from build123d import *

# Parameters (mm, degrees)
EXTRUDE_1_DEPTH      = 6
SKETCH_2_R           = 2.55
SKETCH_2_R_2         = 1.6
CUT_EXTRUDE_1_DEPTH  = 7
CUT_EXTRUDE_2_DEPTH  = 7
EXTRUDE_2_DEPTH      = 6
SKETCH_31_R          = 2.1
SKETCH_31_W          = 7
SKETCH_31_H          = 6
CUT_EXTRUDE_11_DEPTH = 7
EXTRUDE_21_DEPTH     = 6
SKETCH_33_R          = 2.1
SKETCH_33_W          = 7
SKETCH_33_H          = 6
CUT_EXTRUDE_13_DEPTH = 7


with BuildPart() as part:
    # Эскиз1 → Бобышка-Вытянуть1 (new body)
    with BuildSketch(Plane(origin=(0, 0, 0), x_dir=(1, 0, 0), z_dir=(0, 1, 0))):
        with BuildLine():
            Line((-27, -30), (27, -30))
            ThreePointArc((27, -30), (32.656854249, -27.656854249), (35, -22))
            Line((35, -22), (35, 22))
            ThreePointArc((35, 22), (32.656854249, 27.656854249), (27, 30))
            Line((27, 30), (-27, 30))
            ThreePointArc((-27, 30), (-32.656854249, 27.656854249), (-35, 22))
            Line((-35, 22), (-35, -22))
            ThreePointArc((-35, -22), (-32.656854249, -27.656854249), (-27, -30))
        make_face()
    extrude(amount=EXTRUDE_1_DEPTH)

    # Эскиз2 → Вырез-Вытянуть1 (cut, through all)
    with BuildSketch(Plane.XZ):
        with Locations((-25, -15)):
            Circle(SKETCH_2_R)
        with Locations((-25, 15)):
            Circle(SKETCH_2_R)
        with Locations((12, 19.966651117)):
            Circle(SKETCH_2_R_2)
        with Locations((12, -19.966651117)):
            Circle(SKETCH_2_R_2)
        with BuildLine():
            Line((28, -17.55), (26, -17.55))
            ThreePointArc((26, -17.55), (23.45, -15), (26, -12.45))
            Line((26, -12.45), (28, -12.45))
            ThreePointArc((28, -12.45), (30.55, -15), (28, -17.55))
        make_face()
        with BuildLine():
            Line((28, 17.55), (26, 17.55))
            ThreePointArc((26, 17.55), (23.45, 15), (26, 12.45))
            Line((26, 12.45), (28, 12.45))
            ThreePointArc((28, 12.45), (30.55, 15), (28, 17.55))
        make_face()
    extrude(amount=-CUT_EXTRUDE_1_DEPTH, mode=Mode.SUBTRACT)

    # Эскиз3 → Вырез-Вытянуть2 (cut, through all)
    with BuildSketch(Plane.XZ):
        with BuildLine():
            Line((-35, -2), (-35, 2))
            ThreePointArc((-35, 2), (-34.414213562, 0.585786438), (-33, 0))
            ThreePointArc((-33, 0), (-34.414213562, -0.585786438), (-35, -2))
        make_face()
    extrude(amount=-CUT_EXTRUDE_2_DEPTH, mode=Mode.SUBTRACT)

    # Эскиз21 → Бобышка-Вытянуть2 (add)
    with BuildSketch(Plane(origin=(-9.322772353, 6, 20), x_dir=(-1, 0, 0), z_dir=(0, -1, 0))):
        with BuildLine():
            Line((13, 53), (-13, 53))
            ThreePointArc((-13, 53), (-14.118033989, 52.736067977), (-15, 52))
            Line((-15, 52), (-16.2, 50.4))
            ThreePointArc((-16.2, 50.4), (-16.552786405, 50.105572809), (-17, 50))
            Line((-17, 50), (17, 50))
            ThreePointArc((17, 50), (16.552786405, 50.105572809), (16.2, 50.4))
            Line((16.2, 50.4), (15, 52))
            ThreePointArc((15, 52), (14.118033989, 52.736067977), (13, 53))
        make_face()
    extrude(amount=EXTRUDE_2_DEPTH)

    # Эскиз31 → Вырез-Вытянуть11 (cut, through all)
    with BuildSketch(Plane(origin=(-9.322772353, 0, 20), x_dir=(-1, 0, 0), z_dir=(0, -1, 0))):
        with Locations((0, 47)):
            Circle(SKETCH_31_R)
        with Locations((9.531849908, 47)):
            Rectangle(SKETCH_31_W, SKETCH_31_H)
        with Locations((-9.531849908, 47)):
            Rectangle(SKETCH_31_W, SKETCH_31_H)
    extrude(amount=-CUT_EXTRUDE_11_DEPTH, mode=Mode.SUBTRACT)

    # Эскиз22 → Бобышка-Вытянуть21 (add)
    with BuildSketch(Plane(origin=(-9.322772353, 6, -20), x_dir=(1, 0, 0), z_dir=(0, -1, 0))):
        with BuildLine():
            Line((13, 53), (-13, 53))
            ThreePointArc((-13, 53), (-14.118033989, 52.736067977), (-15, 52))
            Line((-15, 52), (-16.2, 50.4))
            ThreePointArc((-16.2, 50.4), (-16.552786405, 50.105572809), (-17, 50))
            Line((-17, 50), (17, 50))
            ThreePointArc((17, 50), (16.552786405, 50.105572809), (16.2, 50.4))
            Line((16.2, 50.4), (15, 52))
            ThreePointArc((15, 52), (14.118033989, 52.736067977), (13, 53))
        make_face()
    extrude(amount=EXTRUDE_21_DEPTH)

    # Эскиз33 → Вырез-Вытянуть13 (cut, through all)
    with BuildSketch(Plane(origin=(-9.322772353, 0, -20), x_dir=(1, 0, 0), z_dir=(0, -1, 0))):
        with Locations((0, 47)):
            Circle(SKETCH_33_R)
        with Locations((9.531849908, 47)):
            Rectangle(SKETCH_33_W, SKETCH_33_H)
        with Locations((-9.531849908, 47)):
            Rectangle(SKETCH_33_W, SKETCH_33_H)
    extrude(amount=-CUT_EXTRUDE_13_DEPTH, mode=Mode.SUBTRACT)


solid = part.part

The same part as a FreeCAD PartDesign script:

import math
import FreeCAD as App
import Part
import Sketcher
from FreeCAD import Vector


def add_polygon(sketch, points):
    """Adds a closed chain of lines whose ends are joined by coincident constraints."""
    first, n = sketch.GeometryCount, len(points)
    for a, b in zip(points, points[1:] + points[:1]):
        sketch.addGeometry(Part.LineSegment(App.Vector(*a, 0), App.Vector(*b, 0)), False)
    for i in range(n):
        sketch.addConstraint(Sketcher.Constraint("Coincident", first + i, 2, first + (i + 1) % n, 1))

doc = App.newDocument("Part")
body = doc.addObject("PartDesign::Body", "Body")

# Sketch on XZ plane
sketch1 = body.newObject("Sketcher::SketchObject", "Sketch")
sketch1.AttachmentSupport = (doc.getObject("XZ_Plane"), [""])
sketch1.MapMode = "FlatFace"
sketch1.addGeometry([
    Part.LineSegment(Vector(-27, 30, 0), Vector(27, 30, 0)),  # 0
    Part.ArcOfCircle(Part.Circle(Vector(27, 22, 0), Vector(0, 0, 1), 8), math.radians(0), math.radians(90)),  # 1
    Part.LineSegment(Vector(35, 22, 0), Vector(35, -22, 0)),  # 2
    Part.ArcOfCircle(Part.Circle(Vector(27, -22, 0), Vector(0, 0, 1), 8), math.radians(-90), math.radians(0)),  # 3
    Part.LineSegment(Vector(27, -30, 0), Vector(-27, -30, 0)),  # 4
    Part.ArcOfCircle(Part.Circle(Vector(-27, -22, 0), Vector(0, 0, 1), 8), math.radians(-180), math.radians(-90)),  # 5
    Part.LineSegment(Vector(-35, -22, 0), Vector(-35, 22, 0)),  # 6
    Part.ArcOfCircle(Part.Circle(Vector(-27, 22, 0), Vector(0, 0, 1), 8), math.radians(90), math.radians(180)),  # 7
], False)
sketch1.addConstraint([
    Sketcher.Constraint("Tangent", 0, 2, 1, 2),
    Sketcher.Constraint("Tangent", 1, 1, 2, 1),
    Sketcher.Constraint("Tangent", 2, 2, 3, 2),
    Sketcher.Constraint("Tangent", 3, 1, 4, 1),
    Sketcher.Constraint("Tangent", 4, 2, 5, 2),
    Sketcher.Constraint("Tangent", 5, 1, 6, 1),
    Sketcher.Constraint("Tangent", 6, 2, 7, 2),
    Sketcher.Constraint("Tangent", 7, 1, 0, 1),
    Sketcher.Constraint("Horizontal", 0),
    Sketcher.Constraint("Vertical", 2),
    Sketcher.Constraint("Horizontal", 4),
    Sketcher.Constraint("Vertical", 6),
    Sketcher.Constraint("Equal", 1, 3),
    Sketcher.Constraint("Equal", 3, 5),
    Sketcher.Constraint("Equal", 5, 7),
    Sketcher.Constraint("Symmetric", 1, 3, 5, 3, -1, 1),
    Sketcher.Constraint("Radius", 1, 8.0),
    Sketcher.Constraint("DistanceX", 0, 1, 0, 2, 54.0),
    Sketcher.Constraint("DistanceY", 2, 2, 2, 1, 44.0),
])
pad1 = body.newObject("PartDesign::Pad", "Pad")
pad1.Profile = sketch1
pad1.Length = 6
pad1.Reversed = True

# Sketch on XZ plane
sketch2 = body.newObject("Sketcher::SketchObject", "Sketch001")
sketch2.AttachmentSupport = (doc.getObject("XZ_Plane"), [""])
sketch2.MapMode = "FlatFace"
sketch2.addGeometry([
    Part.Circle(Vector(-25, -15, 0), Vector(0, 0, 1), 2.5),  # 0
    Part.Circle(Vector(-25, 15, 0), Vector(0, 0, 1), 2.5),  # 1
    Part.Circle(Vector(12, 20, 0), Vector(0, 0, 1), 1.6),  # 2
    Part.Circle(Vector(12, -20, 0), Vector(0, 0, 1), 1.6),  # 3
    Part.LineSegment(Vector(26, -17.6, 0), Vector(28, -17.6, 0)),  # 4
    Part.ArcOfCircle(Part.Circle(Vector(28, -15, 0), Vector(0, 0, 1), 2.5), math.radians(-90), math.radians(90)),  # 5
    Part.LineSegment(Vector(28, -12.4, 0), Vector(26, -12.4, 0)),  # 6
    Part.ArcOfCircle(Part.Circle(Vector(26, -15, 0), Vector(0, 0, 1), 2.5), math.radians(90), math.radians(270)),  # 7
    Part.LineSegment(Vector(28, 17.6, 0), Vector(26, 17.6, 0)),  # 8
    Part.ArcOfCircle(Part.Circle(Vector(26, 15, 0), Vector(0, 0, 1), 2.5), math.radians(90), math.radians(270)),  # 9
    Part.LineSegment(Vector(26, 12.4, 0), Vector(28, 12.4, 0)),  # 10
    Part.ArcOfCircle(Part.Circle(Vector(28, 15, 0), Vector(0, 0, 1), 2.5), math.radians(-90), math.radians(90)),  # 11
], False)
sketch2.addConstraint([
    Sketcher.Constraint("Tangent", 4, 2, 5, 1),
    Sketcher.Constraint("Tangent", 5, 2, 6, 1),
    Sketcher.Constraint("Tangent", 6, 2, 7, 1),
    Sketcher.Constraint("Tangent", 7, 2, 4, 1),
    Sketcher.Constraint("Tangent", 8, 2, 9, 1),
    Sketcher.Constraint("Tangent", 9, 2, 10, 1),
    Sketcher.Constraint("Tangent", 10, 2, 11, 1),
    Sketcher.Constraint("Tangent", 11, 2, 8, 1),
    Sketcher.Constraint("Horizontal", 4),
    Sketcher.Constraint("Horizontal", 6),
    Sketcher.Constraint("Horizontal", 8),
    Sketcher.Constraint("Horizontal", 10),
    Sketcher.Constraint("Equal", 0, 1),
    Sketcher.Constraint("Equal", 2, 3),
    Sketcher.Constraint("Equal", 1, 5),
    Sketcher.Constraint("Equal", 7, 9),
    Sketcher.Constraint("Symmetric", 0, 3, 1, 3, -1),
    Sketcher.Constraint("Symmetric", 2, 3, 3, 3, -1),
    Sketcher.Constraint("Symmetric", 7, 3, 9, 3, -1),
    Sketcher.Constraint("Horizontal", 0, 3, 5, 3),
    Sketcher.Constraint("Vertical", 5, 3, 11, 3),
    Sketcher.Constraint("Diameter", 0, 5.1),
    Sketcher.Constraint("Diameter", 2, 3.2),
    Sketcher.Constraint("DistanceX", 4, 1, 4, 2, 2.0),
    Sketcher.Constraint("DistanceX", 0, 3, -1, 1, 25.0),
    Sketcher.Constraint("DistanceY", 0, 3, -1, 1, 15.0),
    Sketcher.Constraint("DistanceX", -1, 1, 2, 3, 12.0),
    Sketcher.Constraint("DistanceX", -1, 1, 5, 3, 28.0),
    Sketcher.Constraint("DistanceY", -1, 1, 2, 3, 19.966651),
])
pocket1 = body.newObject("PartDesign::Pocket", "Pocket")
pocket1.Profile = sketch2
pocket1.Type = "ThroughAll"

# Sketch on XZ plane
sketch3 = body.newObject("Sketcher::SketchObject", "Sketch002")
sketch3.AttachmentSupport = (doc.getObject("XZ_Plane"), [""])
sketch3.MapMode = "FlatFace"
sketch3.addGeometry([
    Part.LineSegment(Vector(-35, 2, 0), Vector(-35, -2, 0)),
    Part.ArcOfCircle(Part.Circle(Vector(-33, -2, 0), Vector(0, 0, 1), 2), math.radians(90), math.radians(180)),
    Part.ArcOfCircle(Part.Circle(Vector(-33, 2, 0), Vector(0, 0, 1), 2), math.radians(-180), math.radians(-90)),
], False)
sketch3.addConstraint([
    Sketcher.Constraint("Tangent", 0, 2, 1, 2),
    Sketcher.Constraint("Tangent", 1, 1, 2, 2),
    Sketcher.Constraint("Tangent", 2, 1, 0, 1),
    Sketcher.Constraint("Vertical", 0),
    Sketcher.Constraint("Equal", 1, 2),
    Sketcher.Constraint("PointOnObject", 1, 1, -1),
    Sketcher.Constraint("Radius", 1, 2.0),
    Sketcher.Constraint("DistanceX", 1, 3, -1, 1, 33.0),
])
pocket2 = body.newObject("PartDesign::Pocket", "Pocket001")
pocket2.Profile = sketch3
pocket2.Type = "ThroughAll"

# Sketch on XZ plane
sketch4 = body.newObject("Sketcher::SketchObject", "Sketch003")
sketch4.AttachmentSupport = (doc.getObject("XZ_Plane"), [""])
sketch4.MapMode = "FlatFace"
sketch4.AttachmentOffset = App.Placement(Vector(0, 0, -6), App.Rotation())
sketch4.addGeometry([
    Part.LineSegment(Vector(-22.3, -33, 0), Vector(3.7, -33, 0)),  # 0
    Part.ArcOfCircle(Part.Circle(Vector(3.7, -30.5, 0), Vector(0, 0, 1), 2.5), math.radians(-90), math.radians(-37)),  # 1
    Part.LineSegment(Vector(5.7, -32, 0), Vector(6.9, -30.4, 0)),  # 2
    Part.ArcOfCircle(Part.Circle(Vector(7.7, -31, 0), Vector(0, 0, 1), 1), math.radians(90), math.radians(143)),  # 3
    Part.LineSegment(Vector(7.7, -30, 0), Vector(-26.3, -30, 0)),  # 4
    Part.ArcOfCircle(Part.Circle(Vector(-26.3, -31, 0), Vector(0, 0, 1), 1), math.radians(37), math.radians(90)),  # 5
    Part.LineSegment(Vector(-25.5, -30.4, 0), Vector(-24.3, -32, 0)),  # 6
    Part.ArcOfCircle(Part.Circle(Vector(-22.3, -30.5, 0), Vector(0, 0, 1), 2.5), math.radians(-143), math.radians(-90)),  # 7
], False)
sketch4.addConstraint([
    Sketcher.Constraint("Tangent", 0, 2, 1, 1),
    Sketcher.Constraint("Tangent", 1, 2, 2, 1),
    Sketcher.Constraint("Tangent", 2, 2, 3, 2),
    Sketcher.Constraint("Tangent", 3, 1, 4, 1),
    Sketcher.Constraint("Tangent", 4, 2, 5, 2),
    Sketcher.Constraint("Tangent", 5, 1, 6, 1),
    Sketcher.Constraint("Tangent", 6, 2, 7, 1),
    Sketcher.Constraint("Tangent", 7, 2, 0, 1),
    Sketcher.Constraint("Horizontal", 0),
    Sketcher.Constraint("Horizontal", 4),
    Sketcher.Constraint("Equal", 3, 5),
    Sketcher.Constraint("Equal", 1, 7),
    Sketcher.Constraint("Horizontal", 2, 2, 5, 1),
    Sketcher.Constraint("Radius", 3, 1.0),
    Sketcher.Constraint("Radius", 1, 2.5),
    Sketcher.Constraint("DistanceX", 0, 1, 0, 2, 26.0),
    Sketcher.Constraint("DistanceX", 4, 2, 4, 1, 34.0),
    Sketcher.Constraint("Distance", 2, 2.0),
    Sketcher.Constraint("DistanceY", 3, 3, -1, 1, 31.0),
    Sketcher.Constraint("DistanceX", -1, 1, 1, 3, 3.677228),
])
pad2 = body.newObject("PartDesign::Pad", "Pad001")
pad2.Profile = sketch4
pad2.Length = 6

# Sketch on XZ plane
sketch5 = body.newObject("Sketcher::SketchObject", "Sketch004")
sketch5.AttachmentSupport = (doc.getObject("XZ_Plane"), [""])
sketch5.MapMode = "FlatFace"
sketch5.addGeometry(Part.Circle(Vector(-9.3, -27, 0), Vector(0, 0, 1), 2.1), False)  # 0
add_polygon(sketch5, [(-15.4, -30), (-15.4, -24), (-22.4, -24), (-22.4, -30)])  # lines 1-4
add_polygon(sketch5, [(3.7, -30), (3.7, -24), (-3.3, -24), (-3.3, -30)])  # lines 5-8
sketch5.addConstraint([
    Sketcher.Constraint("Vertical", 1),
    Sketcher.Constraint("Horizontal", 2),
    Sketcher.Constraint("Vertical", 3),
    Sketcher.Constraint("Horizontal", 4),
    Sketcher.Constraint("Vertical", 5),
    Sketcher.Constraint("Horizontal", 6),
    Sketcher.Constraint("Vertical", 7),
    Sketcher.Constraint("Horizontal", 8),
    Sketcher.Constraint("Horizontal", 2, 2, 5, 2),
    Sketcher.Constraint("Horizontal", 4, 2, 7, 2),
    Sketcher.Constraint("Equal", 4, 6),
    Sketcher.Constraint("Diameter", 0, 4.2),
    Sketcher.Constraint("DistanceX", 2, 2, 2, 1, 7.0),
    Sketcher.Constraint("DistanceY", 1, 1, 1, 2, 6.0),
    Sketcher.Constraint("DistanceY", 0, 3, -1, 1, 27.0),
    Sketcher.Constraint("DistanceY", 1, 2, -1, 1, 24.0),
    Sketcher.Constraint("DistanceX", 1, 2, 5, 2, 19.0637),
    Sketcher.Constraint("DistanceX", 1, 2, 0, 3, 6.03185),
    Sketcher.Constraint("DistanceX", 0, 3, -1, 1, 9.322772),
])
pocket3 = body.newObject("PartDesign::Pocket", "Pocket002")
pocket3.Profile = sketch5
pocket3.Type = "ThroughAll"

# Sketch on XZ plane
sketch6 = body.newObject("Sketcher::SketchObject", "Sketch005")
sketch6.AttachmentSupport = (doc.getObject("XZ_Plane"), [""])
sketch6.MapMode = "FlatFace"
sketch6.AttachmentOffset = App.Placement(Vector(0, 0, -6), App.Rotation())
sketch6.addGeometry([
    Part.LineSegment(Vector(3.7, 33, 0), Vector(-22.3, 33, 0)),  # 0
    Part.ArcOfCircle(Part.Circle(Vector(-22.3, 30.5, 0), Vector(0, 0, 1), 2.5), math.radians(90), math.radians(143)),  # 1
    Part.LineSegment(Vector(-24.3, 32, 0), Vector(-25.5, 30.4, 0)),  # 2
    Part.ArcOfCircle(Part.Circle(Vector(-26.3, 31, 0), Vector(0, 0, 1), 1), math.radians(-90), math.radians(-37)),  # 3
    Part.LineSegment(Vector(-26.3, 30, 0), Vector(7.7, 30, 0)),  # 4
    Part.ArcOfCircle(Part.Circle(Vector(7.7, 31, 0), Vector(0, 0, 1), 1), math.radians(-143), math.radians(-90)),  # 5
    Part.LineSegment(Vector(6.9, 30.4, 0), Vector(5.7, 32, 0)),  # 6
    Part.ArcOfCircle(Part.Circle(Vector(3.7, 30.5, 0), Vector(0, 0, 1), 2.5), math.radians(37), math.radians(90)),  # 7
], False)
sketch6.addConstraint([
    Sketcher.Constraint("Tangent", 0, 2, 1, 1),
    Sketcher.Constraint("Tangent", 1, 2, 2, 1),
    Sketcher.Constraint("Tangent", 2, 2, 3, 2),
    Sketcher.Constraint("Tangent", 3, 1, 4, 1),
    Sketcher.Constraint("Tangent", 4, 2, 5, 2),
    Sketcher.Constraint("Tangent", 5, 1, 6, 1),
    Sketcher.Constraint("Tangent", 6, 2, 7, 1),
    Sketcher.Constraint("Tangent", 7, 2, 0, 1),
    Sketcher.Constraint("Horizontal", 0),
    Sketcher.Constraint("Horizontal", 4),
    Sketcher.Constraint("Equal", 3, 5),
    Sketcher.Constraint("Equal", 1, 7),
    Sketcher.Constraint("Horizontal", 2, 2, 5, 1),
    Sketcher.Constraint("Radius", 3, 1.0),
    Sketcher.Constraint("Radius", 1, 2.5),
    Sketcher.Constraint("DistanceX", 0, 2, 0, 1, 26.0),
    Sketcher.Constraint("DistanceX", 4, 1, 4, 2, 34.0),
    Sketcher.Constraint("Distance", 2, 2.0),
    Sketcher.Constraint("DistanceY", -1, 1, 3, 3, 31.0),
    Sketcher.Constraint("DistanceX", 1, 3, -1, 1, 22.322772),
])
pad3 = body.newObject("PartDesign::Pad", "Pad002")
pad3.Profile = sketch6
pad3.Length = 6

# Sketch on XZ plane
sketch7 = body.newObject("Sketcher::SketchObject", "Sketch006")
sketch7.AttachmentSupport = (doc.getObject("XZ_Plane"), [""])
sketch7.MapMode = "FlatFace"
sketch7.addGeometry(Part.Circle(Vector(-9.3, 27, 0), Vector(0, 0, 1), 2.1), False)  # 0
add_polygon(sketch7, [(-3.3, 30), (-3.3, 24), (3.7, 24), (3.7, 30)])  # lines 1-4
add_polygon(sketch7, [(-22.4, 30), (-22.4, 24), (-15.4, 24), (-15.4, 30)])  # lines 5-8
sketch7.addConstraint([
    Sketcher.Constraint("Vertical", 1),
    Sketcher.Constraint("Horizontal", 2),
    Sketcher.Constraint("Vertical", 3),
    Sketcher.Constraint("Horizontal", 4),
    Sketcher.Constraint("Vertical", 5),
    Sketcher.Constraint("Horizontal", 6),
    Sketcher.Constraint("Vertical", 7),
    Sketcher.Constraint("Horizontal", 8),
    Sketcher.Constraint("Horizontal", 2, 2, 5, 2),
    Sketcher.Constraint("Horizontal", 4, 2, 7, 2),
    Sketcher.Constraint("Equal", 4, 6),
    Sketcher.Constraint("Diameter", 0, 4.2),
    Sketcher.Constraint("DistanceX", 2, 1, 2, 2, 7.0),
    Sketcher.Constraint("DistanceY", 1, 2, 1, 1, 6.0),
    Sketcher.Constraint("DistanceY", -1, 1, 0, 3, 27.0),
    Sketcher.Constraint("DistanceY", -1, 1, 1, 2, 24.0),
    Sketcher.Constraint("DistanceX", 5, 2, 1, 2, 19.0637),
    Sketcher.Constraint("DistanceX", 0, 3, 1, 2, 6.03185),
    Sketcher.Constraint("DistanceX", 0, 3, -1, 1, 9.322772),
])
pocket4 = body.newObject("PartDesign::Pocket", "Pocket003")
pocket4.Profile = sketch7
pocket4.Type = "ThroughAll"

doc.recompute()
